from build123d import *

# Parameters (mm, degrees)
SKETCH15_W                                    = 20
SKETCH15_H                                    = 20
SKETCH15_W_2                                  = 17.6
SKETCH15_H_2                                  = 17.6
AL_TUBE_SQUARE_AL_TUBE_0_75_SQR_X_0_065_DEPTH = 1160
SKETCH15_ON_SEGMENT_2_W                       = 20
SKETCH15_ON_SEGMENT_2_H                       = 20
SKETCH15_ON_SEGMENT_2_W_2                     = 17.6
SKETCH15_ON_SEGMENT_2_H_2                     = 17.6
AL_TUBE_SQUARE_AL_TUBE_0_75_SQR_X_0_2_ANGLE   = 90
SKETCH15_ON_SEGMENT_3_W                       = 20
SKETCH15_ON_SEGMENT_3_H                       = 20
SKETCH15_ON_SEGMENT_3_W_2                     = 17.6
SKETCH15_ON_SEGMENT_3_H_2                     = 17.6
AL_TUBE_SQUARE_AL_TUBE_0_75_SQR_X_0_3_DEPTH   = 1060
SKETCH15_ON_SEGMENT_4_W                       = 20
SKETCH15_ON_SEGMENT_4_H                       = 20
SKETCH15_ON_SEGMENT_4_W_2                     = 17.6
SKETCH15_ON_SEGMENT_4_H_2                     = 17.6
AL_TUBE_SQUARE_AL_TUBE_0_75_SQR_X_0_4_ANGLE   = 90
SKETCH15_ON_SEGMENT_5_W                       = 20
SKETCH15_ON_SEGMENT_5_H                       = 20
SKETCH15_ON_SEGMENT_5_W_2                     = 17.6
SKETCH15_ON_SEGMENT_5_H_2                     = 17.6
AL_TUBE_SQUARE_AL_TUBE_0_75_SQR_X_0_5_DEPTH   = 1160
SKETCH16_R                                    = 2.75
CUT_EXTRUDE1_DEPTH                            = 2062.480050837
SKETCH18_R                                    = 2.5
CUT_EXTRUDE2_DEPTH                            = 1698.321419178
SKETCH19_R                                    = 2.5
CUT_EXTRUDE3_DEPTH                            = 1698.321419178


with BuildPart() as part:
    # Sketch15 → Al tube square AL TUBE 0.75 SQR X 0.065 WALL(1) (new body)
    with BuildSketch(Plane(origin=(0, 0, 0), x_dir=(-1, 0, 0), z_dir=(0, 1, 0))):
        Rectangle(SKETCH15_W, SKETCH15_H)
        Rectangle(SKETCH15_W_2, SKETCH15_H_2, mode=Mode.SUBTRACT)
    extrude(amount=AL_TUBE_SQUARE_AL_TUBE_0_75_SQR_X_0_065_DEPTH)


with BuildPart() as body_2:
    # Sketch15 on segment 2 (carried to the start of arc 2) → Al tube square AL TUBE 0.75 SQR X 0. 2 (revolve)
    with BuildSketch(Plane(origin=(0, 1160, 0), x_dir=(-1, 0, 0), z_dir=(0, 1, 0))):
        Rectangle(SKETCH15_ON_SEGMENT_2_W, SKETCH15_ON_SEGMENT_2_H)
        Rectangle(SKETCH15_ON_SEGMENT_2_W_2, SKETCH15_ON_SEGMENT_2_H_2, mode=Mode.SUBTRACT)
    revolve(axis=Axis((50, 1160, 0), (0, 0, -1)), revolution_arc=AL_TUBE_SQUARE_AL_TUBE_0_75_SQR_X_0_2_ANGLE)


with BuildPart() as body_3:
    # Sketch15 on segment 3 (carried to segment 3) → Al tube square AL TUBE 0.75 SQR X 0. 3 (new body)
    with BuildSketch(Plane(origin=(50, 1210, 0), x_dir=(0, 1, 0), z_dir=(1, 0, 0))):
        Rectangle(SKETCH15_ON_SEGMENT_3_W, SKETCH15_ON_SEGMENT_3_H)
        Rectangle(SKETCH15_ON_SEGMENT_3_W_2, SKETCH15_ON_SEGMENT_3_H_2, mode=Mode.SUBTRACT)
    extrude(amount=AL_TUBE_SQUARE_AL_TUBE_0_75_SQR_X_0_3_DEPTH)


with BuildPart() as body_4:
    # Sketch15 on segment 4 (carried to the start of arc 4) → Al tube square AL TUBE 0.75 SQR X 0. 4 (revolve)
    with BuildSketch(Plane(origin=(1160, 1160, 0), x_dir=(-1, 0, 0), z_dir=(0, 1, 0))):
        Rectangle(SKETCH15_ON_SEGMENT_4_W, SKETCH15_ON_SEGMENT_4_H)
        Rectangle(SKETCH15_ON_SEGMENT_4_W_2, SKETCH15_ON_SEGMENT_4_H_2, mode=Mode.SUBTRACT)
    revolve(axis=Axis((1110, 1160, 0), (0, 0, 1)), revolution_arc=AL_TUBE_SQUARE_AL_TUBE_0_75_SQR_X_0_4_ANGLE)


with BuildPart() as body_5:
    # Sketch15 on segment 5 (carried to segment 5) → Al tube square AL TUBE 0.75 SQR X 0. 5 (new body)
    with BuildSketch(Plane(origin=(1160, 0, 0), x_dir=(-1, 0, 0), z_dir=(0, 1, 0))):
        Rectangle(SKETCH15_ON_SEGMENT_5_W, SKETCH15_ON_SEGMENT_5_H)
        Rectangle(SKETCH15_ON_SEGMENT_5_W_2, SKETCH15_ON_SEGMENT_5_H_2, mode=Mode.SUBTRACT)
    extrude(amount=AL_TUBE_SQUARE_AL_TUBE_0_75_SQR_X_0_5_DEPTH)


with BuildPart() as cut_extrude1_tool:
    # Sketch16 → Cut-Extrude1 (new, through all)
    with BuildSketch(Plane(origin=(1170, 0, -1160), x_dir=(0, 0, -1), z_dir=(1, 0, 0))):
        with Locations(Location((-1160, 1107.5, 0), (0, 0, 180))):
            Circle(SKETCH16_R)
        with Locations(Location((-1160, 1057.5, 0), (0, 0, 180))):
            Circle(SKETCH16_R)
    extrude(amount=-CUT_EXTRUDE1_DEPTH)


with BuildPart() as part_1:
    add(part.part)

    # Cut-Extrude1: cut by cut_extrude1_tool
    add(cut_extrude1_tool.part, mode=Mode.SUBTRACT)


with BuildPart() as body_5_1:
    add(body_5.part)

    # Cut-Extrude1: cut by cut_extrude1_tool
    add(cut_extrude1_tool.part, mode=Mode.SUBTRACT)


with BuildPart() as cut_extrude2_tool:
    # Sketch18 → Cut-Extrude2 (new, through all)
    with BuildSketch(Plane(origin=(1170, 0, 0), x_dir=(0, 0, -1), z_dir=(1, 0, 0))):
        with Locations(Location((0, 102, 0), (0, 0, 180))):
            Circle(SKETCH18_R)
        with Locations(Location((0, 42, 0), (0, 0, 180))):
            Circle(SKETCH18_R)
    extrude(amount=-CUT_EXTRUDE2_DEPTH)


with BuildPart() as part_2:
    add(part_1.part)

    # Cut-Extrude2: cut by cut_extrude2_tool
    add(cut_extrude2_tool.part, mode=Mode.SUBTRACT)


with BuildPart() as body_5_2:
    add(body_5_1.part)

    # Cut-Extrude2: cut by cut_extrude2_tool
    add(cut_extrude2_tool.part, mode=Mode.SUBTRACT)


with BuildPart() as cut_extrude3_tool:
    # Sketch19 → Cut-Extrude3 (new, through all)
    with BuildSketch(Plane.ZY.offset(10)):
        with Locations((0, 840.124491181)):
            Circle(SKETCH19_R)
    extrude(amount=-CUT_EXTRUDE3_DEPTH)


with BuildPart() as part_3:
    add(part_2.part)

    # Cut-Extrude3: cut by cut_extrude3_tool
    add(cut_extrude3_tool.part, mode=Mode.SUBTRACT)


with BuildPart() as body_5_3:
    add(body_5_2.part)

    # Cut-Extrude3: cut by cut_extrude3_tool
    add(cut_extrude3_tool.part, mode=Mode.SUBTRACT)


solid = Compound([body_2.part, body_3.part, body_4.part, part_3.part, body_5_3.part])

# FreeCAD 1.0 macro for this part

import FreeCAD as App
import Part
import Sketcher

doc = App.newDocument("Part")
body = doc.addObject("PartDesign::Body", "Body")

# Sketch on XZ plane
sketch1 = body.newObject("Sketcher::SketchObject", "Sketch")
sketch1.AttachmentSupport = (doc.getObject("XZ_Plane"), [""])
sketch1.MapMode = "FlatFace"
sketch1.addGeometry([
    Part.LineSegment(App.Vector(10, 10, 0), App.Vector(10, -10, 0)),  # 0
    Part.LineSegment(App.Vector(10, -10, 0), App.Vector(-10, -10, 0)),  # 1
    Part.LineSegment(App.Vector(-10, -10, 0), App.Vector(-10, 10, 0)),  # 2
    Part.LineSegment(App.Vector(-10, 10, 0), App.Vector(10, 10, 0)),  # 3
    Part.LineSegment(App.Vector(-8.8, -8.8, 0), App.Vector(8.8, -8.8, 0)),  # 4
    Part.LineSegment(App.Vector(8.8, -8.8, 0), App.Vector(8.8, 8.8, 0)),  # 5
    Part.LineSegment(App.Vector(8.8, 8.8, 0), App.Vector(-8.8, 8.8, 0)),  # 6
    Part.LineSegment(App.Vector(-8.8, 8.8, 0), App.Vector(-8.8, -8.8, 0)),  # 7
], False)
sketch1.addConstraint([
    Sketcher.Constraint("Coincident", 0, 2, 1, 1),
    Sketcher.Constraint("Coincident", 1, 2, 2, 1),
    Sketcher.Constraint("Coincident", 2, 2, 3, 1),
    Sketcher.Constraint("Coincident", 3, 2, 0, 1),
    Sketcher.Constraint("Coincident", 4, 2, 5, 1),
    Sketcher.Constraint("Coincident", 5, 2, 6, 1),
    Sketcher.Constraint("Coincident", 6, 2, 7, 1),
    Sketcher.Constraint("Coincident", 7, 2, 4, 1),
    Sketcher.Constraint("Vertical", 0),
    Sketcher.Constraint("Horizontal", 1),
    Sketcher.Constraint("Vertical", 2),
    Sketcher.Constraint("Horizontal", 3),
    Sketcher.Constraint("Horizontal", 4),
    Sketcher.Constraint("Vertical", 5),
    Sketcher.Constraint("Horizontal", 6),
    Sketcher.Constraint("Vertical", 7),
    Sketcher.Constraint("Symmetric", 0, 2, 2, 2, -1, 1),
    Sketcher.Constraint("Symmetric", 4, 2, 6, 2, -1, 1),
    Sketcher.Constraint("Equal", 3, 0),
    Sketcher.Constraint("Equal", 6, 5),
    Sketcher.Constraint("DistanceX", 1, 2, 1, 1, 20.0),
    Sketcher.Constraint("DistanceX", 4, 1, 4, 2, 17.6),
])
pad1 = body.newObject("PartDesign::Pad", "Pad")
pad1.Profile = sketch1
pad1.Length = 1160
pad1.Reversed = True
body2 = doc.addObject("PartDesign::Body", "Body001")

# Sketch on XZ plane
sketch2 = body2.newObject("Sketcher::SketchObject", "Sketch001")
sketch2.AttachmentSupport = (doc.getObject("XZ_Plane001"), [""])
sketch2.MapMode = "FlatFace"
sketch2.AttachmentOffset = App.Placement(App.Vector(0, 0, -1160), App.Rotation())
sketch2.addGeometry([
    Part.LineSegment(App.Vector(10, 10, 0), App.Vector(10, -10, 0)),  # 0
    Part.LineSegment(App.Vector(10, -10, 0), App.Vector(-10, -10, 0)),  # 1
    Part.LineSegment(App.Vector(-10, -10, 0), App.Vector(-10, 10, 0)),  # 2
    Part.LineSegment(App.Vector(-10, 10, 0), App.Vector(10, 10, 0)),  # 3
    Part.LineSegment(App.Vector(-8.8, -8.8, 0), App.Vector(8.8, -8.8, 0)),  # 4
    Part.LineSegment(App.Vector(8.8, -8.8, 0), App.Vector(8.8, 8.8, 0)),  # 5
    Part.LineSegment(App.Vector(8.8, 8.8, 0), App.Vector(-8.8, 8.8, 0)),  # 6
    Part.LineSegment(App.Vector(-8.8, 8.8, 0), App.Vector(-8.8, -8.8, 0)),  # 7
], False)
sketch2.addGeometry(Part.LineSegment(App.Vector(50, 10, 0), App.Vector(50, -10, 0)), True)  # axis
sketch2.addConstraint([
    Sketcher.Constraint("Coincident", 0, 2, 1, 1),
    Sketcher.Constraint("Coincident", 1, 2, 2, 1),
    Sketcher.Constraint("Coincident", 2, 2, 3, 1),
    Sketcher.Constraint("Coincident", 3, 2, 0, 1),
    Sketcher.Constraint("Coincident", 4, 2, 5, 1),
    Sketcher.Constraint("Coincident", 5, 2, 6, 1),
    Sketcher.Constraint("Coincident", 6, 2, 7, 1),
    Sketcher.Constraint("Coincident", 7, 2, 4, 1),
    Sketcher.Constraint("Vertical", 0),
    Sketcher.Constraint("Horizontal", 1),
    Sketcher.Constraint("Vertical", 2),
    Sketcher.Constraint("Horizontal", 3),
    Sketcher.Constraint("Horizontal", 4),
    Sketcher.Constraint("Vertical", 5),
    Sketcher.Constraint("Horizontal", 6),
    Sketcher.Constraint("Vertical", 7),
    Sketcher.Constraint("Vertical", 8),
    Sketcher.Constraint("Symmetric", 0, 2, 2, 2, -1, 1),
    Sketcher.Constraint("Symmetric", 4, 2, 6, 2, -1, 1),
    Sketcher.Constraint("Horizontal", 3, 2, 8, 1),
    Sketcher.Constraint("Horizontal", 1, 2, 8, 2),
    Sketcher.Constraint("Equal", 3, 0),
    Sketcher.Constraint("Equal", 6, 5),
    Sketcher.Constraint("DistanceX", 1, 2, 1, 1, 20.0),
    Sketcher.Constraint("DistanceX", 4, 1, 4, 2, 17.6),
    Sketcher.Constraint("DistanceX", -1, 1, 8, 1, 50.0),
])
revolution = body2.newObject("PartDesign::Revolution", "Revolution")
revolution.Profile = sketch2
revolution.ReferenceAxis = (sketch2, ["Axis0"])
revolution.Angle = 90
body3 = doc.addObject("PartDesign::Body", "Body002")

# Sketch on YZ plane
sketch3 = body3.newObject("Sketcher::SketchObject", "Sketch002")
sketch3.AttachmentSupport = (doc.getObject("YZ_Plane002"), [""])
sketch3.MapMode = "FlatFace"
sketch3.AttachmentOffset = App.Placement(App.Vector(0, 0, 50), App.Rotation())
sketch3.addGeometry([
    Part.LineSegment(App.Vector(1200, 10, 0), App.Vector(1200, -10, 0)),  # 0
    Part.LineSegment(App.Vector(1200, -10, 0), App.Vector(1220, -10, 0)),  # 1
    Part.LineSegment(App.Vector(1220, -10, 0), App.Vector(1220, 10, 0)),  # 2
    Part.LineSegment(App.Vector(1220, 10, 0), App.Vector(1200, 10, 0)),  # 3
    Part.LineSegment(App.Vector(1218.8, -8.8, 0), App.Vector(1201.2, -8.8, 0)),  # 4
    Part.LineSegment(App.Vector(1201.2, -8.8, 0), App.Vector(1201.2, 8.8, 0)),  # 5
    Part.LineSegment(App.Vector(1201.2, 8.8, 0), App.Vector(1218.8, 8.8, 0)),  # 6
    Part.LineSegment(App.Vector(1218.8, 8.8, 0), App.Vector(1218.8, -8.8, 0)),  # 7
], False)
sketch3.addConstraint([
    Sketcher.Constraint("Coincident", 0, 2, 1, 1),
    Sketcher.Constraint("Coincident", 1, 2, 2, 1),
    Sketcher.Constraint("Coincident", 2, 2, 3, 1),
    Sketcher.Constraint("Coincident", 3, 2, 0, 1),
    Sketcher.Constraint("Coincident", 4, 2, 5, 1),
    Sketcher.Constraint("Coincident", 5, 2, 6, 1),
    Sketcher.Constraint("Coincident", 6, 2, 7, 1),
    Sketcher.Constraint("Coincident", 7, 2, 4, 1),
    Sketcher.Constraint("Vertical", 0),
    Sketcher.Constraint("Horizontal", 1),
    Sketcher.Constraint("Vertical", 2),
    Sketcher.Constraint("Horizontal", 3),
    Sketcher.Constraint("Horizontal", 4),
    Sketcher.Constraint("Vertical", 5),
    Sketcher.Constraint("Horizontal", 6),
    Sketcher.Constraint("Vertical", 7),
    Sketcher.Constraint("Equal", 3, 0),
    Sketcher.Constraint("Equal", 6, 5),
    Sketcher.Constraint("DistanceX", 1, 1, 1, 2, 20.0),
    Sketcher.Constraint("DistanceX", 4, 2, 4, 1, 17.6),
    Sketcher.Constraint("DistanceX", -1, 1, 0, 2, 1200.0),
    Sketcher.Constraint("DistanceY", 0, 2, -1, 1, 10.0),
    Sketcher.Constraint("DistanceX", -1, 1, 4, 2, 1201.2),
    Sketcher.Constraint("DistanceY", 4, 2, -1, 1, 8.8),
])
pad2 = body3.newObject("PartDesign::Pad", "Pad001")
pad2.Profile = sketch3
pad2.Length = 1060
body4 = doc.addObject("PartDesign::Body", "Body003")

# Sketch on XZ plane
sketch4 = body4.newObject("Sketcher::SketchObject", "Sketch003")
sketch4.AttachmentSupport = (doc.getObject("XZ_Plane003"), [""])
sketch4.MapMode = "FlatFace"
sketch4.AttachmentOffset = App.Placement(App.Vector(0, 0, -1160), App.Rotation())
sketch4.addGeometry([
    Part.LineSegment(App.Vector(1170, 10, 0), App.Vector(1170, -10, 0)),  # 0
    Part.LineSegment(App.Vector(1170, -10, 0), App.Vector(1150, -10, 0)),  # 1
    Part.LineSegment(App.Vector(1150, -10, 0), App.Vector(1150, 10, 0)),  # 2
    Part.LineSegment(App.Vector(1150, 10, 0), App.Vector(1170, 10, 0)),  # 3
    Part.LineSegment(App.Vector(1151.2, -8.8, 0), App.Vector(1168.8, -8.8, 0)),  # 4
    Part.LineSegment(App.Vector(1168.8, -8.8, 0), App.Vector(1168.8, 8.8, 0)),  # 5
    Part.LineSegment(App.Vector(1168.8, 8.8, 0), App.Vector(1151.2, 8.8, 0)),  # 6
    Part.LineSegment(App.Vector(1151.2, 8.8, 0), App.Vector(1151.2, -8.8, 0)),  # 7
], False)
sketch4.addGeometry(Part.LineSegment(App.Vector(1110, -10, 0), App.Vector(1110, 10, 0)), True)  # axis
sketch4.addConstraint([
    Sketcher.Constraint("Coincident", 0, 2, 1, 1),
    Sketcher.Constraint("Coincident", 1, 2, 2, 1),
    Sketcher.Constraint("Coincident", 2, 2, 3, 1),
    Sketcher.Constraint("Coincident", 3, 2, 0, 1),
    Sketcher.Constraint("Coincident", 4, 2, 5, 1),
    Sketcher.Constraint("Coincident", 5, 2, 6, 1),
    Sketcher.Constraint("Coincident", 6, 2, 7, 1),
    Sketcher.Constraint("Coincident", 7, 2, 4, 1),
    Sketcher.Constraint("Vertical", 0),
    Sketcher.Constraint("Horizontal", 1),
    Sketcher.Constraint("Vertical", 2),
    Sketcher.Constraint("Horizontal", 3),
    Sketcher.Constraint("Horizontal", 4),
    Sketcher.Constraint("Vertical", 5),
    Sketcher.Constraint("Horizontal", 6),
    Sketcher.Constraint("Vertical", 7),
    Sketcher.Constraint("Vertical", 8),
    Sketcher.Constraint("Horizontal", 1, 2, 8, 1),
    Sketcher.Constraint("Horizontal", 3, 2, 8, 2),
    Sketcher.Constraint("Equal", 3, 0),
    Sketcher.Constraint("Equal", 6, 5),
    Sketcher.Constraint("DistanceX", 1, 2, 1, 1, 20.0),
    Sketcher.Constraint("DistanceX", 4, 1, 4, 2, 17.6),
    Sketcher.Constraint("DistanceX", -1, 1, 0, 2, 1170.0),
    Sketcher.Constraint("DistanceY", 0, 2, -1, 1, 10.0),
    Sketcher.Constraint("DistanceX", -1, 1, 8, 1, 1110.0),
    Sketcher.Constraint("DistanceX", -1, 1, 4, 2, 1168.8),
    Sketcher.Constraint("DistanceY", 4, 2, -1, 1, 8.8),
])
revolution2 = body4.newObject("PartDesign::Revolution", "Revolution001")
revolution2.Profile = sketch4
revolution2.ReferenceAxis = (sketch4, ["Axis0"])
revolution2.Angle = 90
body5 = doc.addObject("PartDesign::Body", "Body004")

# Sketch on XZ plane
sketch5 = body5.newObject("Sketcher::SketchObject", "Sketch004")
sketch5.AttachmentSupport = (doc.getObject("XZ_Plane004"), [""])
sketch5.MapMode = "FlatFace"
sketch5.addGeometry([
    Part.LineSegment(App.Vector(1170, 10, 0), App.Vector(1170, -10, 0)),  # 0
    Part.LineSegment(App.Vector(1170, -10, 0), App.Vector(1150, -10, 0)),  # 1
    Part.LineSegment(App.Vector(1150, -10, 0), App.Vector(1150, 10, 0)),  # 2
    Part.LineSegment(App.Vector(1150, 10, 0), App.Vector(1170, 10, 0)),  # 3
    Part.LineSegment(App.Vector(1151.2, -8.8, 0), App.Vector(1168.8, -8.8, 0)),  # 4
    Part.LineSegment(App.Vector(1168.8, -8.8, 0), App.Vector(1168.8, 8.8, 0)),  # 5
    Part.LineSegment(App.Vector(1168.8, 8.8, 0), App.Vector(1151.2, 8.8, 0)),  # 6
    Part.LineSegment(App.Vector(1151.2, 8.8, 0), App.Vector(1151.2, -8.8, 0)),  # 7
], False)
sketch5.addConstraint([
    Sketcher.Constraint("Coincident", 0, 2, 1, 1),
    Sketcher.Constraint("Coincident", 1, 2, 2, 1),
    Sketcher.Constraint("Coincident", 2, 2, 3, 1),
    Sketcher.Constraint("Coincident", 3, 2, 0, 1),
    Sketcher.Constraint("Coincident", 4, 2, 5, 1),
    Sketcher.Constraint("Coincident", 5, 2, 6, 1),
    Sketcher.Constraint("Coincident", 6, 2, 7, 1),
    Sketcher.Constraint("Coincident", 7, 2, 4, 1),
    Sketcher.Constraint("Vertical", 0),
    Sketcher.Constraint("Horizontal", 1),
    Sketcher.Constraint("Vertical", 2),
    Sketcher.Constraint("Horizontal", 3),
    Sketcher.Constraint("Horizontal", 4),
    Sketcher.Constraint("Vertical", 5),
    Sketcher.Constraint("Horizontal", 6),
    Sketcher.Constraint("Vertical", 7),
    Sketcher.Constraint("Equal", 3, 0),
    Sketcher.Constraint("Equal", 6, 5),
    Sketcher.Constraint("DistanceX", 1, 2, 1, 1, 20.0),
    Sketcher.Constraint("DistanceX", 4, 1, 4, 2, 17.6),
    Sketcher.Constraint("DistanceX", -1, 1, 0, 2, 1170.0),
    Sketcher.Constraint("DistanceY", 0, 2, -1, 1, 10.0),
    Sketcher.Constraint("DistanceX", -1, 1, 4, 2, 1168.8),
    Sketcher.Constraint("DistanceY", 4, 2, -1, 1, 8.8),
])
pad3 = body5.newObject("PartDesign::Pad", "Pad002")
pad3.Profile = sketch5
pad3.Length = 1160
pad3.Reversed = True
body6 = doc.addObject("PartDesign::Body", "Body005")
body6.AllowCompound = True

# Sketch on YZ plane
sketch6 = body6.newObject("Sketcher::SketchObject", "Sketch005")
sketch6.AttachmentSupport = (doc.getObject("YZ_Plane005"), [""])
sketch6.MapMode = "FlatFace"
sketch6.AttachmentOffset = App.Placement(App.Vector(0, 0, 1170), App.Rotation())
sketch6.addGeometry([
    Part.Circle(App.Vector(1107.5, 0, 0), App.Vector(0, 0, 1), 2.75),
    Part.Circle(App.Vector(1057.5, 0, 0), App.Vector(0, 0, 1), 2.75),
], False)
sketch6.addConstraint([
    Sketcher.Constraint("Equal", 0, 1),
    Sketcher.Constraint("PointOnObject", 0, 3, -1),
    Sketcher.Constraint("PointOnObject", 1, 3, -1),
    Sketcher.Constraint("Diameter", 0, 5.5),
    Sketcher.Constraint("DistanceX", 1, 3, 0, 3, 50.0),
    Sketcher.Constraint("DistanceX", -1, 1, 0, 3, 1107.5),
])
pad4 = body6.newObject("PartDesign::Pad", "Pad003")
pad4.Profile = sketch6
pad4.Length = 2062.480051
pad4.Reversed = True
doc.recompute()

body7 = doc.addObject("PartDesign::Body", "Body006")
body7.BaseFeature = body6
boolean = body.newObject("PartDesign::Boolean", "Boolean")
boolean.Type = "Cut"
boolean.addObjects([body7])
doc.recompute()

boolean2 = body5.newObject("PartDesign::Boolean", "Boolean001")
boolean2.Type = "Cut"
boolean2.addObjects([body6])
body8 = doc.addObject("PartDesign::Body", "Body007")
body8.AllowCompound = True

# Sketch on YZ plane
sketch7 = body8.newObject("Sketcher::SketchObject", "Sketch006")
sketch7.AttachmentSupport = (doc.getObject("YZ_Plane007"), [""])
sketch7.MapMode = "FlatFace"
sketch7.AttachmentOffset = App.Placement(App.Vector(0, 0, 1170), App.Rotation())
sketch7.addGeometry([
    Part.Circle(App.Vector(102, 0, 0), App.Vector(0, 0, 1), 2.5),
    Part.Circle(App.Vector(42, 0, 0), App.Vector(0, 0, 1), 2.5),
], False)
sketch7.addConstraint([
    Sketcher.Constraint("Equal", 0, 1),
    Sketcher.Constraint("PointOnObject", 0, 3, -1),
    Sketcher.Constraint("PointOnObject", 1, 3, -1),
    Sketcher.Constraint("Diameter", 0, 5.0),
    Sketcher.Constraint("DistanceX", -1, 1, 0, 3, 102.0),
    Sketcher.Constraint("DistanceX", -1, 1, 1, 3, 42.0),
])
pad5 = body8.newObject("PartDesign::Pad", "Pad004")
pad5.Profile = sketch7
pad5.Length = 1698.321419
pad5.Reversed = True
doc.recompute()

body9 = doc.addObject("PartDesign::Body", "Body008")
body9.BaseFeature = body8
boolean3 = body.newObject("PartDesign::Boolean", "Boolean002")
boolean3.Type = "Cut"
boolean3.addObjects([body9])
doc.recompute()

boolean4 = body5.newObject("PartDesign::Boolean", "Boolean003")
boolean4.Type = "Cut"
boolean4.addObjects([body8])
body10 = doc.addObject("PartDesign::Body", "Body009")

# Sketch on YZ plane
sketch8 = body10.newObject("Sketcher::SketchObject", "Sketch007")
sketch8.AttachmentSupport = (doc.getObject("YZ_Plane009"), [""])
sketch8.MapMode = "FlatFace"
sketch8.AttachmentOffset = App.Placement(App.Vector(0, 0, -10), App.Rotation())
sketch8.addGeometry(Part.Circle(App.Vector(840.124491, 0, 0), App.Vector(0, 0, 1), 2.5), False)
sketch8.addConstraint([
    Sketcher.Constraint("PointOnObject", 0, 3, -1),
    Sketcher.Constraint("Diameter", 0, 5.0),
    Sketcher.Constraint("DistanceX", -1, 1, 0, 3, 840.124491),
])
pad6 = body10.newObject("PartDesign::Pad", "Pad005")
pad6.Profile = sketch8
pad6.Length = 1698.321419
doc.recompute()

body11 = doc.addObject("PartDesign::Body", "Body010")
body11.BaseFeature = body10
boolean5 = body.newObject("PartDesign::Boolean", "Boolean004")
boolean5.Type = "Cut"
boolean5.addObjects([body11])
doc.recompute()

boolean6 = body5.newObject("PartDesign::Boolean", "Boolean005")
boolean6.Type = "Cut"
boolean6.addObjects([body10])

doc.recompute()
